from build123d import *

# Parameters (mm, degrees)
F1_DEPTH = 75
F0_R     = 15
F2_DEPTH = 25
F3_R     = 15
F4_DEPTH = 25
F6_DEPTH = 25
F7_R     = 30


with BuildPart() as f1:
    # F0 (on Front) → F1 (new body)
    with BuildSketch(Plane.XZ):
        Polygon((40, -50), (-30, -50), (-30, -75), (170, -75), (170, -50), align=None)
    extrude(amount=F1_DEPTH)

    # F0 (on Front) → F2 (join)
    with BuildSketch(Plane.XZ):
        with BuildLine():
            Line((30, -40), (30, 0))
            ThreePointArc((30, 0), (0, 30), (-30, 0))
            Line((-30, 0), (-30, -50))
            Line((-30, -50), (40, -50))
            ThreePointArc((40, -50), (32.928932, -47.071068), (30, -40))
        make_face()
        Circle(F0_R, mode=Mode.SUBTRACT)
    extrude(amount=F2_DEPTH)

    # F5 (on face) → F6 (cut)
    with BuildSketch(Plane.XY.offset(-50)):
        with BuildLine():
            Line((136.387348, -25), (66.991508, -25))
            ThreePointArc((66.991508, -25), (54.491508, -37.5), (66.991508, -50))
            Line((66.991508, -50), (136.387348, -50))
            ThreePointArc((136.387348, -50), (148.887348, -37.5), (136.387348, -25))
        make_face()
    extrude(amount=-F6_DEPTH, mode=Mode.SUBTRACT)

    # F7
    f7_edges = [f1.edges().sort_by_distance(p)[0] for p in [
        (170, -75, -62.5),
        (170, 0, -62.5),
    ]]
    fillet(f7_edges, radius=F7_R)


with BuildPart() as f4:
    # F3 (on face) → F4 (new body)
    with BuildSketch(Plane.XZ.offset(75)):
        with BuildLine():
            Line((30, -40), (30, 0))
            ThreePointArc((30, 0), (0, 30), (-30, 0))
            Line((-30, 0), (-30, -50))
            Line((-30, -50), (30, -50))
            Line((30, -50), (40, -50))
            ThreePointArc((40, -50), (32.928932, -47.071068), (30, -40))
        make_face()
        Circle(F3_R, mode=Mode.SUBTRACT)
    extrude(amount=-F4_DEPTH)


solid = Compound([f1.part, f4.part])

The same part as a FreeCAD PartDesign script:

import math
import FreeCAD as App
import Part
import Sketcher
from FreeCAD import Vector


def edges_at(feature, points):
    """Names of the edges that pass closest to the given points."""
    edges = feature.Shape.Edges
    near = lambda p: min(range(len(edges)), key=lambda i: edges[i].distToShape(Part.Vertex(*p))[0])
    return sorted({f"Edge{near(p) + 1}" for p in points})


def add_polygon(sketch, points):
    """Adds a closed chain of lines whose ends are joined by coincident constraints."""
    first, n = sketch.GeometryCount, len(points)
    for a, b in zip(points, points[1:] + points[:1]):
        sketch.addGeometry(Part.LineSegment(App.Vector(*a, 0), App.Vector(*b, 0)), False)
    for i in range(n):
        sketch.addConstraint(Sketcher.Constraint("Coincident", first + i, 2, first + (i + 1) % n, 1))

doc = App.newDocument("Part")
params = doc.addObject("Spreadsheet::Sheet", "Params")
for row, (alias, value) in enumerate([
    ("sketch1_width", "200 mm"),
    ("sketch1_height", "25 mm"),
    ("pad1_length", "75 mm"),
    ("sketch2_diameter", "30 mm"),
    ("sketch2_radius", "30 mm"),
    ("sketch2_radius2", "9.999999 mm"),
    ("sketch2_height", "40 mm"),
    ("pad2_length", "25 mm"),
    ("sketch3_radius", "12.5 mm"),
    ("pocket1_length", "25 mm"),
    ("fillet_radius", "30 mm"),
    ("sketch4_diameter", "30 mm"),
    ("sketch4_radius", "30 mm"),
    ("sketch4_radius2", "9.999999 mm"),
    ("sketch4_height", "40 mm"),
    ("pad3_length", "25 mm"),
], start=1):
    params.set(f"A{row}", alias)
    params.set(f"B{row}", "=" + value)
    params.setAlias(f"B{row}", alias)

body = doc.addObject("PartDesign::Body", "Body")

# Sketch on XZ plane
sketch1 = body.newObject("Sketcher::SketchObject", "Sketch")
sketch1.AttachmentSupport = (doc.getObject("XZ_Plane"), [""])
sketch1.MapMode = "FlatFace"
add_polygon(sketch1, [(-30, -50), (-30, -75), (170, -75), (170, -50)])  # lines 0-3
sketch1.addConstraint([
    Sketcher.Constraint("Vertical", 0),
    Sketcher.Constraint("Horizontal", 1),
    Sketcher.Constraint("Vertical", 2),
    Sketcher.Constraint("Horizontal", 3),
    Sketcher.Constraint("DistanceX", 1, 1, 1, 2, 200.0),
    Sketcher.Constraint("DistanceY", 0, 2, 0, 1, 25.0),
    Sketcher.Constraint("DistanceX", 0, 2, -1, 1, 30.0),
    Sketcher.Constraint("DistanceY", 0, 2, -1, 1, 75.0),
])
sketch1.setExpression("Constraints[8]", "Params.sketch1_width")
sketch1.setExpression("Constraints[9]", "Params.sketch1_height")
pad1 = body.newObject("PartDesign::Pad", "Pad")
pad1.Profile = sketch1
pad1.setExpression("Length", "Params.pad1_length")

# Sketch on XZ plane
sketch2 = body.newObject("Sketcher::SketchObject", "Sketch001")
sketch2.AttachmentSupport = (doc.getObject("XZ_Plane"), [""])
sketch2.MapMode = "FlatFace"
sketch2.addGeometry([
    Part.LineSegment(Vector(30, -40, 0), Vector(30, 0, 0)),  # 0
    Part.ArcOfCircle(Part.Circle(Vector(0, 0, 0), Vector(0, 0, 1), 30), math.radians(0), math.radians(180)),  # 1
    Part.LineSegment(Vector(-30, 0, 0), Vector(-30, -50, 0)),  # 2
    Part.LineSegment(Vector(-30, -50, 0), Vector(40, -50, 0)),  # 3
    Part.ArcOfCircle(Part.Circle(Vector(39.999999, -40.000001, 0), Vector(0, 0, 1), 9.999999), math.radians(179.999996), math.radians(270.000004)),  # 4
    Part.Circle(Vector(0, 0, 0), Vector(0, 0, 1), 15),  # 5
], False)
sketch2.addConstraint([
    Sketcher.Constraint("Tangent", 0, 2, 1, 1),
    Sketcher.Constraint("Tangent", 1, 2, 2, 1),
    Sketcher.Constraint("Coincident", 2, 2, 3, 1),
    Sketcher.Constraint("Tangent", 3, 2, 4, 2),
    Sketcher.Constraint("Tangent", 4, 1, 0, 1),
    Sketcher.Constraint("Vertical", 0),
    Sketcher.Constraint("Vertical", 2),
    Sketcher.Constraint("Horizontal", 3),
    Sketcher.Constraint("Coincident", 1, 3, -1, 1),
    Sketcher.Constraint("Coincident", 5, 3, -1, 1),
    Sketcher.Constraint("Diameter", 5, 30.0),
    Sketcher.Constraint("Radius", 1, 30.0),
    Sketcher.Constraint("Radius", 4, 9.999999),
    Sketcher.Constraint("DistanceY", 0, 1, 0, 2, 40.0),
])
sketch2.setExpression("Constraints[10]", "Params.sketch2_diameter")
sketch2.setExpression("Constraints[11]", "Params.sketch2_radius")
sketch2.setExpression("Constraints[12]", "Params.sketch2_radius2")
sketch2.setExpression("Constraints[13]", "Params.sketch2_height")
pad2 = body.newObject("PartDesign::Pad", "Pad001")
pad2.Profile = sketch2
pad2.setExpression("Length", "Params.pad2_length")

# Sketch on XY plane
sketch3 = body.newObject("Sketcher::SketchObject", "Sketch002")
sketch3.AttachmentSupport = (doc.getObject("XY_Plane"), [""])
sketch3.MapMode = "FlatFace"
sketch3.AttachmentOffset = App.Placement(Vector(0, 0, -50), App.Rotation())
sketch3.addGeometry([
    Part.LineSegment(Vector(136.387348, -25, 0), Vector(66.991508, -25, 0)),
    Part.ArcOfCircle(Part.Circle(Vector(66.991508, -37.5, 0), Vector(0, 0, 1), 12.5), math.radians(90), math.radians(270)),
    Part.LineSegment(Vector(66.991508, -50, 0), Vector(136.387348, -50, 0)),
    Part.ArcOfCircle(Part.Circle(Vector(136.387348, -37.5, 0), Vector(0, 0, 1), 12.5), math.radians(-90), math.radians(90)),
], False)
sketch3.addConstraint([
    Sketcher.Constraint("Tangent", 0, 2, 1, 1),
    Sketcher.Constraint("Tangent", 1, 2, 2, 1),
    Sketcher.Constraint("Tangent", 2, 2, 3, 1),
    Sketcher.Constraint("Tangent", 3, 2, 0, 1),
    Sketcher.Constraint("Horizontal", 0),
    Sketcher.Constraint("Horizontal", 2),
    Sketcher.Constraint("Radius", 1, 12.5),
    Sketcher.Constraint("DistanceY", 0, 2, -1, 1, 25.0),
    Sketcher.Constraint("DistanceX", 0, 2, 0, 1, 69.39584),
    Sketcher.Constraint("DistanceX", -1, 1, 3, 3, 136.387348),
])
sketch3.setExpression("Constraints[6]", "Params.sketch3_radius")
pocket1 = body.newObject("PartDesign::Pocket", "Pocket")
pocket1.Profile = sketch3
pocket1.setExpression("Length", "Params.pocket1_length")
doc.recompute()

fillet = body.newObject("PartDesign::Fillet", "Fillet")
fillet.Base = (pocket1, edges_at(pocket1, [(170, -75, -62.5), (170, 0, -62.5)]))
fillet.setExpression("Radius", "Params.fillet_radius")
body2 = doc.addObject("PartDesign::Body", "Body001")

# Sketch on XZ plane
sketch4 = body2.newObject("Sketcher::SketchObject", "Sketch003")
sketch4.AttachmentSupport = (doc.getObject("XZ_Plane001"), [""])
sketch4.MapMode = "FlatFace"
sketch4.AttachmentOffset = App.Placement(Vector(0, 0, 75), App.Rotation())
sketch4.addGeometry([
    Part.LineSegment(Vector(30, -40, 0), Vector(30, 0, 0)),  # 0
    Part.ArcOfCircle(Part.Circle(Vector(0, 0, 0), Vector(0, 0, 1), 30), math.radians(0), math.radians(180)),  # 1
    Part.LineSegment(Vector(-30, 0, 0), Vector(-30, -50, 0)),  # 2
    Part.LineSegment(Vector(-30, -50, 0), Vector(40, -50, 0)),  # 3
    Part.ArcOfCircle(Part.Circle(Vector(39.999999, -40.000001, 0), Vector(0, 0, 1), 9.999999), math.radians(179.999996), math.radians(270.000004)),  # 4
    Part.Circle(Vector(0, 0, 0), Vector(0, 0, 1), 15),  # 5
], False)
sketch4.addConstraint([
    Sketcher.Constraint("Tangent", 0, 2, 1, 1),
    Sketcher.Constraint("Tangent", 1, 2, 2, 1),
    Sketcher.Constraint("Coincident", 2, 2, 3, 1),
    Sketcher.Constraint("Tangent", 3, 2, 4, 2),
    Sketcher.Constraint("Tangent", 4, 1, 0, 1),
    Sketcher.Constraint("Vertical", 0),
    Sketcher.Constraint("Vertical", 2),
    Sketcher.Constraint("Horizontal", 3),
    Sketcher.Constraint("Coincident", 1, 3, -1, 1),
    Sketcher.Constraint("Coincident", 5, 3, -1, 1),
    Sketcher.Constraint("Diameter", 5, 30.0),
    Sketcher.Constraint("Radius", 1, 30.0),
    Sketcher.Constraint("Radius", 4, 9.999999),
    Sketcher.Constraint("DistanceY", 0, 1, 0, 2, 40.0),
])
sketch4.setExpression("Constraints[10]", "Params.sketch4_diameter")
sketch4.setExpression("Constraints[11]", "Params.sketch4_radius")
sketch4.setExpression("Constraints[12]", "Params.sketch4_radius2")
sketch4.setExpression("Constraints[13]", "Params.sketch4_height")
pad3 = body2.newObject("PartDesign::Pad", "Pad002")
pad3.Profile = sketch4
pad3.setExpression("Length", "Params.pad3_length")
pad3.Reversed = True

doc.recompute()
